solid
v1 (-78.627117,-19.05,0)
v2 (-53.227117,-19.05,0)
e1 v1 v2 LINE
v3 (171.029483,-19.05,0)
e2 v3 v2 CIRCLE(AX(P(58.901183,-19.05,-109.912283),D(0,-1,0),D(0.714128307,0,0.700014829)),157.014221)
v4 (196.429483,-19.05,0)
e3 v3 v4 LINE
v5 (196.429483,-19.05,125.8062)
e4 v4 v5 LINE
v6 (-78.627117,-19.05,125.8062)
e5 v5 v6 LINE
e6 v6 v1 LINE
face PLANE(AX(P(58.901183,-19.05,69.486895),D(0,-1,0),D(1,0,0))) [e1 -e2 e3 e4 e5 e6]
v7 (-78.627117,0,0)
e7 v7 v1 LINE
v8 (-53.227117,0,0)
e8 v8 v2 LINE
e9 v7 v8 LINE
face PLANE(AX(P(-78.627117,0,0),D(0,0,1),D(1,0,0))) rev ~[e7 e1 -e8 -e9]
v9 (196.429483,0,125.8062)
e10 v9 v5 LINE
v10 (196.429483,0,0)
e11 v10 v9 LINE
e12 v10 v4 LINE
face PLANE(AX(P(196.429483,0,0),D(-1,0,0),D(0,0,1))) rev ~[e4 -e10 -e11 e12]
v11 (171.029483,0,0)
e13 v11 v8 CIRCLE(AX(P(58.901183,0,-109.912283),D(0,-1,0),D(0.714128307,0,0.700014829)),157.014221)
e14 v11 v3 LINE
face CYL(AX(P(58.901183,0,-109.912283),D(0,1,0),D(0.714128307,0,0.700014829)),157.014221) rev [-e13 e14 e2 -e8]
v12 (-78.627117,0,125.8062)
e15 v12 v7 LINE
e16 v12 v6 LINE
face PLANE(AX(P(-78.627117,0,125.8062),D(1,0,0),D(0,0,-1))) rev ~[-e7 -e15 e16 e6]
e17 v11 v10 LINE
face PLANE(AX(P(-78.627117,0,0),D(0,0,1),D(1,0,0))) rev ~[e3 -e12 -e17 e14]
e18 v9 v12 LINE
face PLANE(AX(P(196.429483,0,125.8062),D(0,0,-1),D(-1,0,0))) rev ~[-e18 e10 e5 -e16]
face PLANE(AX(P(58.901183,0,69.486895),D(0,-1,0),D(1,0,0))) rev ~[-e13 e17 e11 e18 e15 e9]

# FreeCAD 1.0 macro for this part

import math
import FreeCAD as App
import Part
import Sketcher
from FreeCAD import Vector
Q = App.Units.Quantity

doc = App.newDocument("Part")
body = doc.addObject("PartDesign::Body", "Body")

sketch1 = doc.addObject("Sketcher::SketchObject", "Sketch")
body.addObject(sketch1)
sketch1.AttachmentSupport = (doc.XZ_Plane, [""])
sketch1.MapMode = "FlatFace"
sketch1.addGeometry(Part.LineSegment(Vector(196.429483, 0, 0), Vector(196.429483, 125.8062, 0)), False)
sketch1.addGeometry(Part.LineSegment(Vector(196.429483, 125.8062, 0), Vector(-78.627117, 125.8062, 0)), False)
sketch1.addGeometry(Part.LineSegment(Vector(-78.627117, 125.8062, 0), Vector(-78.627117, 0, 0)), False)
sketch1.addGeometry(Part.LineSegment(Vector(-78.627117, 0, 0), Vector(196.429483, 0, 0)), False)
sketch1.addConstraint(Sketcher.Constraint("Coincident", 0, 2, 1, 1))
sketch1.addConstraint(Sketcher.Constraint("Coincident", 1, 2, 2, 1))
sketch1.addConstraint(Sketcher.Constraint("Coincident", 2, 2, 3, 1))
sketch1.addConstraint(Sketcher.Constraint("Coincident", 3, 2, 0, 1))
sketch1.addConstraint(Sketcher.Constraint("Vertical", 0))
sketch1.addConstraint(Sketcher.Constraint("Horizontal", 1))
sketch1.addConstraint(Sketcher.Constraint("Vertical", 2))
sketch1.addConstraint(Sketcher.Constraint("Horizontal", 3))
sketch1.addConstraint(Sketcher.Constraint("PointOnObject", 2, 2, -1))
sketch1.addConstraint(Sketcher.Constraint("DistanceX", 1, 2, 1, 1, Q("10.829 in")))
sketch1.addConstraint(Sketcher.Constraint("DistanceY", 0, 1, 0, 2, Q("4.953 in")))
sketch1.addConstraint(Sketcher.Constraint("DistanceX", -1, 1, 0, 2, Q("196.429483 mm")))
pad1 = doc.addObject("PartDesign::Pad", "Pad")
body.addObject(pad1)
pad1.Profile = sketch1
pad1.Length = Q("0.75 in")

sketch2 = doc.addObject("Sketcher::SketchObject", "Sketch001")
body.addObject(sketch2)
sketch2.AttachmentSupport = (doc.XZ_Plane, [""])
sketch2.MapMode = "FlatFace"
sketch2.addGeometry(Part.ArcOfCircle(Part.Circle(Vector(58.901183, -109.912283, 0), Vector(0, 0, 1), 157.014221), math.radians(44.428194), math.radians(135.571806)), False)
sketch2.addGeometry(Part.LineSegment(Vector(-53.227117, 0, 0), Vector(171.029483, 0, 0)), False)
sketch2.addConstraint(Sketcher.Constraint("Coincident", 0, 1, 1, 2))
sketch2.addConstraint(Sketcher.Constraint("Coincident", 1, 1, 0, 2))
sketch2.addConstraint(Sketcher.Constraint("Horizontal", 1))
sketch2.addConstraint(Sketcher.Constraint("PointOnObject", 0, 1, -1))
sketch2.addConstraint(Sketcher.Constraint("DistanceX", 1, 1, 1, 2, Q("8.829 in")))
sketch2.addConstraint(Sketcher.Constraint("Radius", 0, Q("157.014221 mm")))
sketch2.addConstraint(Sketcher.Constraint("DistanceX", -1, 1, 0, 3, Q("58.901183 mm")))
pocket1 = doc.addObject("PartDesign::Pocket", "Pocket")
body.addObject(pocket1)
pocket1.Profile = sketch2
pocket1.Length = Q("0.75 in")
pocket1.Reversed = True

doc.recompute()
